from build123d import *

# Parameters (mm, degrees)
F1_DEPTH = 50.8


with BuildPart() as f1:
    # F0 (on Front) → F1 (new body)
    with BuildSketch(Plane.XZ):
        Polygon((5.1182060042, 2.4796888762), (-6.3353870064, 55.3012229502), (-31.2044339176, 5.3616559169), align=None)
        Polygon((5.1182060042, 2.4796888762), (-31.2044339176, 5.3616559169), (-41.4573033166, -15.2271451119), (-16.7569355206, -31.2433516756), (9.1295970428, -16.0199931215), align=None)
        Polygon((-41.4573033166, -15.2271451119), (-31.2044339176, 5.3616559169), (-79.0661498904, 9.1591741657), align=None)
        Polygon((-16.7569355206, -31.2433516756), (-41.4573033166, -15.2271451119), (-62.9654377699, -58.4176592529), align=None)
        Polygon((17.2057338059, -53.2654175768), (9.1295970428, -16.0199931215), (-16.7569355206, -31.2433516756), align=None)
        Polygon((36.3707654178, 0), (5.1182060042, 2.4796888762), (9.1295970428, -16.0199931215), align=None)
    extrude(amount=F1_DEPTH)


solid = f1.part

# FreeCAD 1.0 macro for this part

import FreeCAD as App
import Part
import Sketcher
Q = App.Units.Quantity


def add_polygon(sketch, points):
    """Adds a closed chain of lines whose ends are joined by coincident constraints."""
    first, n = sketch.GeometryCount, len(points)
    for a, b in zip(points, points[1:] + points[:1]):
        sketch.addGeometry(Part.LineSegment(App.Vector(*a, 0), App.Vector(*b, 0)), False)
    for i in range(n):
        sketch.addConstraint(Sketcher.Constraint("Coincident", first + i, 2, first + (i + 1) % n, 1))

doc = App.newDocument("Part")
params = doc.addObject("Spreadsheet::Sheet", "Params")
for row, (alias, value) in enumerate([
    ("pad1_length", "2 in"),
], start=1):
    params.set(f"A{row}", alias)
    params.set(f"B{row}", "=" + value)
    params.setAlias(f"B{row}", alias)

body = doc.addObject("PartDesign::Body", "Body")

# Sketch on XZ plane
sketch1 = doc.addObject("Sketcher::SketchObject", "Sketch")
body.addObject(sketch1)
sketch1.AttachmentSupport = (doc.XZ_Plane, [""])
sketch1.MapMode = "FlatFace"
add_polygon(sketch1, [(5.118206, 2.479689), (-6.335387, 55.301223), (-31.204434, 5.361656), (-79.06615, 9.159174), (-41.457303, -15.227145), (-62.965438, -58.417659), (-16.756936, -31.243352), (17.205734, -53.265418), (9.129597, -16.019993), (36.370765, 0)])  # lines 0-9
sketch1.addConstraint([
    Sketcher.Constraint("PointOnObject", 8, 2, -1),
    Sketcher.Constraint("Parallel", 1, 4),
    Sketcher.Constraint("Parallel", 3, 6),
    Sketcher.Constraint("Parallel", 0, 7),
    Sketcher.Constraint("Parallel", 5, 8),
    Sketcher.Constraint("Parallel", 2, 9),
    Sketcher.Constraint("DistanceY", 3, 2, 1, 2, Q("20.588801 mm")),
    Sketcher.Constraint("DistanceX", 1, 2, 5, 2, Q("14.447498 mm")),
    Sketcher.Constraint("DistanceX", 3, 2, 7, 2, Q("50.5869 mm")),
    Sketcher.Constraint("DistanceX", 5, 2, 8, 2, Q("53.127701 mm")),
    Sketcher.Constraint("Distance", 5, Q("53.60661 mm")),
    Sketcher.Constraint("Distance", 9, Q("31.350779 mm")),
    Sketcher.Constraint("DistanceX", 2, 2, -1, 1, Q("79.06615 mm")),
    Sketcher.Constraint("DistanceY", 4, 2, -1, 1, Q("58.417659 mm")),
    Sketcher.Constraint("DistanceY", 5, 2, -1, 1, Q("31.243352 mm")),
    Sketcher.Constraint("DistanceY", -1, 1, 9, 2, Q("2.479689 mm")),
    Sketcher.Constraint("DistanceY", 1, 2, 2, 2, Q("3.797518 mm")),
    Sketcher.Constraint("DistanceY", 2, 2, 0, 2, Q("46.142049 mm")),
    Sketcher.Constraint("DistanceX", 3, 2, 1, 2, Q("10.252869 mm")),
    Sketcher.Constraint("DistanceX", 4, 2, 0, 2, Q("56.630051 mm")),
])
pad1 = doc.addObject("PartDesign::Pad", "Pad")
body.addObject(pad1)
pad1.Profile = sketch1
pad1.setExpression("Length", "Params.pad1_length")

doc.recompute()
